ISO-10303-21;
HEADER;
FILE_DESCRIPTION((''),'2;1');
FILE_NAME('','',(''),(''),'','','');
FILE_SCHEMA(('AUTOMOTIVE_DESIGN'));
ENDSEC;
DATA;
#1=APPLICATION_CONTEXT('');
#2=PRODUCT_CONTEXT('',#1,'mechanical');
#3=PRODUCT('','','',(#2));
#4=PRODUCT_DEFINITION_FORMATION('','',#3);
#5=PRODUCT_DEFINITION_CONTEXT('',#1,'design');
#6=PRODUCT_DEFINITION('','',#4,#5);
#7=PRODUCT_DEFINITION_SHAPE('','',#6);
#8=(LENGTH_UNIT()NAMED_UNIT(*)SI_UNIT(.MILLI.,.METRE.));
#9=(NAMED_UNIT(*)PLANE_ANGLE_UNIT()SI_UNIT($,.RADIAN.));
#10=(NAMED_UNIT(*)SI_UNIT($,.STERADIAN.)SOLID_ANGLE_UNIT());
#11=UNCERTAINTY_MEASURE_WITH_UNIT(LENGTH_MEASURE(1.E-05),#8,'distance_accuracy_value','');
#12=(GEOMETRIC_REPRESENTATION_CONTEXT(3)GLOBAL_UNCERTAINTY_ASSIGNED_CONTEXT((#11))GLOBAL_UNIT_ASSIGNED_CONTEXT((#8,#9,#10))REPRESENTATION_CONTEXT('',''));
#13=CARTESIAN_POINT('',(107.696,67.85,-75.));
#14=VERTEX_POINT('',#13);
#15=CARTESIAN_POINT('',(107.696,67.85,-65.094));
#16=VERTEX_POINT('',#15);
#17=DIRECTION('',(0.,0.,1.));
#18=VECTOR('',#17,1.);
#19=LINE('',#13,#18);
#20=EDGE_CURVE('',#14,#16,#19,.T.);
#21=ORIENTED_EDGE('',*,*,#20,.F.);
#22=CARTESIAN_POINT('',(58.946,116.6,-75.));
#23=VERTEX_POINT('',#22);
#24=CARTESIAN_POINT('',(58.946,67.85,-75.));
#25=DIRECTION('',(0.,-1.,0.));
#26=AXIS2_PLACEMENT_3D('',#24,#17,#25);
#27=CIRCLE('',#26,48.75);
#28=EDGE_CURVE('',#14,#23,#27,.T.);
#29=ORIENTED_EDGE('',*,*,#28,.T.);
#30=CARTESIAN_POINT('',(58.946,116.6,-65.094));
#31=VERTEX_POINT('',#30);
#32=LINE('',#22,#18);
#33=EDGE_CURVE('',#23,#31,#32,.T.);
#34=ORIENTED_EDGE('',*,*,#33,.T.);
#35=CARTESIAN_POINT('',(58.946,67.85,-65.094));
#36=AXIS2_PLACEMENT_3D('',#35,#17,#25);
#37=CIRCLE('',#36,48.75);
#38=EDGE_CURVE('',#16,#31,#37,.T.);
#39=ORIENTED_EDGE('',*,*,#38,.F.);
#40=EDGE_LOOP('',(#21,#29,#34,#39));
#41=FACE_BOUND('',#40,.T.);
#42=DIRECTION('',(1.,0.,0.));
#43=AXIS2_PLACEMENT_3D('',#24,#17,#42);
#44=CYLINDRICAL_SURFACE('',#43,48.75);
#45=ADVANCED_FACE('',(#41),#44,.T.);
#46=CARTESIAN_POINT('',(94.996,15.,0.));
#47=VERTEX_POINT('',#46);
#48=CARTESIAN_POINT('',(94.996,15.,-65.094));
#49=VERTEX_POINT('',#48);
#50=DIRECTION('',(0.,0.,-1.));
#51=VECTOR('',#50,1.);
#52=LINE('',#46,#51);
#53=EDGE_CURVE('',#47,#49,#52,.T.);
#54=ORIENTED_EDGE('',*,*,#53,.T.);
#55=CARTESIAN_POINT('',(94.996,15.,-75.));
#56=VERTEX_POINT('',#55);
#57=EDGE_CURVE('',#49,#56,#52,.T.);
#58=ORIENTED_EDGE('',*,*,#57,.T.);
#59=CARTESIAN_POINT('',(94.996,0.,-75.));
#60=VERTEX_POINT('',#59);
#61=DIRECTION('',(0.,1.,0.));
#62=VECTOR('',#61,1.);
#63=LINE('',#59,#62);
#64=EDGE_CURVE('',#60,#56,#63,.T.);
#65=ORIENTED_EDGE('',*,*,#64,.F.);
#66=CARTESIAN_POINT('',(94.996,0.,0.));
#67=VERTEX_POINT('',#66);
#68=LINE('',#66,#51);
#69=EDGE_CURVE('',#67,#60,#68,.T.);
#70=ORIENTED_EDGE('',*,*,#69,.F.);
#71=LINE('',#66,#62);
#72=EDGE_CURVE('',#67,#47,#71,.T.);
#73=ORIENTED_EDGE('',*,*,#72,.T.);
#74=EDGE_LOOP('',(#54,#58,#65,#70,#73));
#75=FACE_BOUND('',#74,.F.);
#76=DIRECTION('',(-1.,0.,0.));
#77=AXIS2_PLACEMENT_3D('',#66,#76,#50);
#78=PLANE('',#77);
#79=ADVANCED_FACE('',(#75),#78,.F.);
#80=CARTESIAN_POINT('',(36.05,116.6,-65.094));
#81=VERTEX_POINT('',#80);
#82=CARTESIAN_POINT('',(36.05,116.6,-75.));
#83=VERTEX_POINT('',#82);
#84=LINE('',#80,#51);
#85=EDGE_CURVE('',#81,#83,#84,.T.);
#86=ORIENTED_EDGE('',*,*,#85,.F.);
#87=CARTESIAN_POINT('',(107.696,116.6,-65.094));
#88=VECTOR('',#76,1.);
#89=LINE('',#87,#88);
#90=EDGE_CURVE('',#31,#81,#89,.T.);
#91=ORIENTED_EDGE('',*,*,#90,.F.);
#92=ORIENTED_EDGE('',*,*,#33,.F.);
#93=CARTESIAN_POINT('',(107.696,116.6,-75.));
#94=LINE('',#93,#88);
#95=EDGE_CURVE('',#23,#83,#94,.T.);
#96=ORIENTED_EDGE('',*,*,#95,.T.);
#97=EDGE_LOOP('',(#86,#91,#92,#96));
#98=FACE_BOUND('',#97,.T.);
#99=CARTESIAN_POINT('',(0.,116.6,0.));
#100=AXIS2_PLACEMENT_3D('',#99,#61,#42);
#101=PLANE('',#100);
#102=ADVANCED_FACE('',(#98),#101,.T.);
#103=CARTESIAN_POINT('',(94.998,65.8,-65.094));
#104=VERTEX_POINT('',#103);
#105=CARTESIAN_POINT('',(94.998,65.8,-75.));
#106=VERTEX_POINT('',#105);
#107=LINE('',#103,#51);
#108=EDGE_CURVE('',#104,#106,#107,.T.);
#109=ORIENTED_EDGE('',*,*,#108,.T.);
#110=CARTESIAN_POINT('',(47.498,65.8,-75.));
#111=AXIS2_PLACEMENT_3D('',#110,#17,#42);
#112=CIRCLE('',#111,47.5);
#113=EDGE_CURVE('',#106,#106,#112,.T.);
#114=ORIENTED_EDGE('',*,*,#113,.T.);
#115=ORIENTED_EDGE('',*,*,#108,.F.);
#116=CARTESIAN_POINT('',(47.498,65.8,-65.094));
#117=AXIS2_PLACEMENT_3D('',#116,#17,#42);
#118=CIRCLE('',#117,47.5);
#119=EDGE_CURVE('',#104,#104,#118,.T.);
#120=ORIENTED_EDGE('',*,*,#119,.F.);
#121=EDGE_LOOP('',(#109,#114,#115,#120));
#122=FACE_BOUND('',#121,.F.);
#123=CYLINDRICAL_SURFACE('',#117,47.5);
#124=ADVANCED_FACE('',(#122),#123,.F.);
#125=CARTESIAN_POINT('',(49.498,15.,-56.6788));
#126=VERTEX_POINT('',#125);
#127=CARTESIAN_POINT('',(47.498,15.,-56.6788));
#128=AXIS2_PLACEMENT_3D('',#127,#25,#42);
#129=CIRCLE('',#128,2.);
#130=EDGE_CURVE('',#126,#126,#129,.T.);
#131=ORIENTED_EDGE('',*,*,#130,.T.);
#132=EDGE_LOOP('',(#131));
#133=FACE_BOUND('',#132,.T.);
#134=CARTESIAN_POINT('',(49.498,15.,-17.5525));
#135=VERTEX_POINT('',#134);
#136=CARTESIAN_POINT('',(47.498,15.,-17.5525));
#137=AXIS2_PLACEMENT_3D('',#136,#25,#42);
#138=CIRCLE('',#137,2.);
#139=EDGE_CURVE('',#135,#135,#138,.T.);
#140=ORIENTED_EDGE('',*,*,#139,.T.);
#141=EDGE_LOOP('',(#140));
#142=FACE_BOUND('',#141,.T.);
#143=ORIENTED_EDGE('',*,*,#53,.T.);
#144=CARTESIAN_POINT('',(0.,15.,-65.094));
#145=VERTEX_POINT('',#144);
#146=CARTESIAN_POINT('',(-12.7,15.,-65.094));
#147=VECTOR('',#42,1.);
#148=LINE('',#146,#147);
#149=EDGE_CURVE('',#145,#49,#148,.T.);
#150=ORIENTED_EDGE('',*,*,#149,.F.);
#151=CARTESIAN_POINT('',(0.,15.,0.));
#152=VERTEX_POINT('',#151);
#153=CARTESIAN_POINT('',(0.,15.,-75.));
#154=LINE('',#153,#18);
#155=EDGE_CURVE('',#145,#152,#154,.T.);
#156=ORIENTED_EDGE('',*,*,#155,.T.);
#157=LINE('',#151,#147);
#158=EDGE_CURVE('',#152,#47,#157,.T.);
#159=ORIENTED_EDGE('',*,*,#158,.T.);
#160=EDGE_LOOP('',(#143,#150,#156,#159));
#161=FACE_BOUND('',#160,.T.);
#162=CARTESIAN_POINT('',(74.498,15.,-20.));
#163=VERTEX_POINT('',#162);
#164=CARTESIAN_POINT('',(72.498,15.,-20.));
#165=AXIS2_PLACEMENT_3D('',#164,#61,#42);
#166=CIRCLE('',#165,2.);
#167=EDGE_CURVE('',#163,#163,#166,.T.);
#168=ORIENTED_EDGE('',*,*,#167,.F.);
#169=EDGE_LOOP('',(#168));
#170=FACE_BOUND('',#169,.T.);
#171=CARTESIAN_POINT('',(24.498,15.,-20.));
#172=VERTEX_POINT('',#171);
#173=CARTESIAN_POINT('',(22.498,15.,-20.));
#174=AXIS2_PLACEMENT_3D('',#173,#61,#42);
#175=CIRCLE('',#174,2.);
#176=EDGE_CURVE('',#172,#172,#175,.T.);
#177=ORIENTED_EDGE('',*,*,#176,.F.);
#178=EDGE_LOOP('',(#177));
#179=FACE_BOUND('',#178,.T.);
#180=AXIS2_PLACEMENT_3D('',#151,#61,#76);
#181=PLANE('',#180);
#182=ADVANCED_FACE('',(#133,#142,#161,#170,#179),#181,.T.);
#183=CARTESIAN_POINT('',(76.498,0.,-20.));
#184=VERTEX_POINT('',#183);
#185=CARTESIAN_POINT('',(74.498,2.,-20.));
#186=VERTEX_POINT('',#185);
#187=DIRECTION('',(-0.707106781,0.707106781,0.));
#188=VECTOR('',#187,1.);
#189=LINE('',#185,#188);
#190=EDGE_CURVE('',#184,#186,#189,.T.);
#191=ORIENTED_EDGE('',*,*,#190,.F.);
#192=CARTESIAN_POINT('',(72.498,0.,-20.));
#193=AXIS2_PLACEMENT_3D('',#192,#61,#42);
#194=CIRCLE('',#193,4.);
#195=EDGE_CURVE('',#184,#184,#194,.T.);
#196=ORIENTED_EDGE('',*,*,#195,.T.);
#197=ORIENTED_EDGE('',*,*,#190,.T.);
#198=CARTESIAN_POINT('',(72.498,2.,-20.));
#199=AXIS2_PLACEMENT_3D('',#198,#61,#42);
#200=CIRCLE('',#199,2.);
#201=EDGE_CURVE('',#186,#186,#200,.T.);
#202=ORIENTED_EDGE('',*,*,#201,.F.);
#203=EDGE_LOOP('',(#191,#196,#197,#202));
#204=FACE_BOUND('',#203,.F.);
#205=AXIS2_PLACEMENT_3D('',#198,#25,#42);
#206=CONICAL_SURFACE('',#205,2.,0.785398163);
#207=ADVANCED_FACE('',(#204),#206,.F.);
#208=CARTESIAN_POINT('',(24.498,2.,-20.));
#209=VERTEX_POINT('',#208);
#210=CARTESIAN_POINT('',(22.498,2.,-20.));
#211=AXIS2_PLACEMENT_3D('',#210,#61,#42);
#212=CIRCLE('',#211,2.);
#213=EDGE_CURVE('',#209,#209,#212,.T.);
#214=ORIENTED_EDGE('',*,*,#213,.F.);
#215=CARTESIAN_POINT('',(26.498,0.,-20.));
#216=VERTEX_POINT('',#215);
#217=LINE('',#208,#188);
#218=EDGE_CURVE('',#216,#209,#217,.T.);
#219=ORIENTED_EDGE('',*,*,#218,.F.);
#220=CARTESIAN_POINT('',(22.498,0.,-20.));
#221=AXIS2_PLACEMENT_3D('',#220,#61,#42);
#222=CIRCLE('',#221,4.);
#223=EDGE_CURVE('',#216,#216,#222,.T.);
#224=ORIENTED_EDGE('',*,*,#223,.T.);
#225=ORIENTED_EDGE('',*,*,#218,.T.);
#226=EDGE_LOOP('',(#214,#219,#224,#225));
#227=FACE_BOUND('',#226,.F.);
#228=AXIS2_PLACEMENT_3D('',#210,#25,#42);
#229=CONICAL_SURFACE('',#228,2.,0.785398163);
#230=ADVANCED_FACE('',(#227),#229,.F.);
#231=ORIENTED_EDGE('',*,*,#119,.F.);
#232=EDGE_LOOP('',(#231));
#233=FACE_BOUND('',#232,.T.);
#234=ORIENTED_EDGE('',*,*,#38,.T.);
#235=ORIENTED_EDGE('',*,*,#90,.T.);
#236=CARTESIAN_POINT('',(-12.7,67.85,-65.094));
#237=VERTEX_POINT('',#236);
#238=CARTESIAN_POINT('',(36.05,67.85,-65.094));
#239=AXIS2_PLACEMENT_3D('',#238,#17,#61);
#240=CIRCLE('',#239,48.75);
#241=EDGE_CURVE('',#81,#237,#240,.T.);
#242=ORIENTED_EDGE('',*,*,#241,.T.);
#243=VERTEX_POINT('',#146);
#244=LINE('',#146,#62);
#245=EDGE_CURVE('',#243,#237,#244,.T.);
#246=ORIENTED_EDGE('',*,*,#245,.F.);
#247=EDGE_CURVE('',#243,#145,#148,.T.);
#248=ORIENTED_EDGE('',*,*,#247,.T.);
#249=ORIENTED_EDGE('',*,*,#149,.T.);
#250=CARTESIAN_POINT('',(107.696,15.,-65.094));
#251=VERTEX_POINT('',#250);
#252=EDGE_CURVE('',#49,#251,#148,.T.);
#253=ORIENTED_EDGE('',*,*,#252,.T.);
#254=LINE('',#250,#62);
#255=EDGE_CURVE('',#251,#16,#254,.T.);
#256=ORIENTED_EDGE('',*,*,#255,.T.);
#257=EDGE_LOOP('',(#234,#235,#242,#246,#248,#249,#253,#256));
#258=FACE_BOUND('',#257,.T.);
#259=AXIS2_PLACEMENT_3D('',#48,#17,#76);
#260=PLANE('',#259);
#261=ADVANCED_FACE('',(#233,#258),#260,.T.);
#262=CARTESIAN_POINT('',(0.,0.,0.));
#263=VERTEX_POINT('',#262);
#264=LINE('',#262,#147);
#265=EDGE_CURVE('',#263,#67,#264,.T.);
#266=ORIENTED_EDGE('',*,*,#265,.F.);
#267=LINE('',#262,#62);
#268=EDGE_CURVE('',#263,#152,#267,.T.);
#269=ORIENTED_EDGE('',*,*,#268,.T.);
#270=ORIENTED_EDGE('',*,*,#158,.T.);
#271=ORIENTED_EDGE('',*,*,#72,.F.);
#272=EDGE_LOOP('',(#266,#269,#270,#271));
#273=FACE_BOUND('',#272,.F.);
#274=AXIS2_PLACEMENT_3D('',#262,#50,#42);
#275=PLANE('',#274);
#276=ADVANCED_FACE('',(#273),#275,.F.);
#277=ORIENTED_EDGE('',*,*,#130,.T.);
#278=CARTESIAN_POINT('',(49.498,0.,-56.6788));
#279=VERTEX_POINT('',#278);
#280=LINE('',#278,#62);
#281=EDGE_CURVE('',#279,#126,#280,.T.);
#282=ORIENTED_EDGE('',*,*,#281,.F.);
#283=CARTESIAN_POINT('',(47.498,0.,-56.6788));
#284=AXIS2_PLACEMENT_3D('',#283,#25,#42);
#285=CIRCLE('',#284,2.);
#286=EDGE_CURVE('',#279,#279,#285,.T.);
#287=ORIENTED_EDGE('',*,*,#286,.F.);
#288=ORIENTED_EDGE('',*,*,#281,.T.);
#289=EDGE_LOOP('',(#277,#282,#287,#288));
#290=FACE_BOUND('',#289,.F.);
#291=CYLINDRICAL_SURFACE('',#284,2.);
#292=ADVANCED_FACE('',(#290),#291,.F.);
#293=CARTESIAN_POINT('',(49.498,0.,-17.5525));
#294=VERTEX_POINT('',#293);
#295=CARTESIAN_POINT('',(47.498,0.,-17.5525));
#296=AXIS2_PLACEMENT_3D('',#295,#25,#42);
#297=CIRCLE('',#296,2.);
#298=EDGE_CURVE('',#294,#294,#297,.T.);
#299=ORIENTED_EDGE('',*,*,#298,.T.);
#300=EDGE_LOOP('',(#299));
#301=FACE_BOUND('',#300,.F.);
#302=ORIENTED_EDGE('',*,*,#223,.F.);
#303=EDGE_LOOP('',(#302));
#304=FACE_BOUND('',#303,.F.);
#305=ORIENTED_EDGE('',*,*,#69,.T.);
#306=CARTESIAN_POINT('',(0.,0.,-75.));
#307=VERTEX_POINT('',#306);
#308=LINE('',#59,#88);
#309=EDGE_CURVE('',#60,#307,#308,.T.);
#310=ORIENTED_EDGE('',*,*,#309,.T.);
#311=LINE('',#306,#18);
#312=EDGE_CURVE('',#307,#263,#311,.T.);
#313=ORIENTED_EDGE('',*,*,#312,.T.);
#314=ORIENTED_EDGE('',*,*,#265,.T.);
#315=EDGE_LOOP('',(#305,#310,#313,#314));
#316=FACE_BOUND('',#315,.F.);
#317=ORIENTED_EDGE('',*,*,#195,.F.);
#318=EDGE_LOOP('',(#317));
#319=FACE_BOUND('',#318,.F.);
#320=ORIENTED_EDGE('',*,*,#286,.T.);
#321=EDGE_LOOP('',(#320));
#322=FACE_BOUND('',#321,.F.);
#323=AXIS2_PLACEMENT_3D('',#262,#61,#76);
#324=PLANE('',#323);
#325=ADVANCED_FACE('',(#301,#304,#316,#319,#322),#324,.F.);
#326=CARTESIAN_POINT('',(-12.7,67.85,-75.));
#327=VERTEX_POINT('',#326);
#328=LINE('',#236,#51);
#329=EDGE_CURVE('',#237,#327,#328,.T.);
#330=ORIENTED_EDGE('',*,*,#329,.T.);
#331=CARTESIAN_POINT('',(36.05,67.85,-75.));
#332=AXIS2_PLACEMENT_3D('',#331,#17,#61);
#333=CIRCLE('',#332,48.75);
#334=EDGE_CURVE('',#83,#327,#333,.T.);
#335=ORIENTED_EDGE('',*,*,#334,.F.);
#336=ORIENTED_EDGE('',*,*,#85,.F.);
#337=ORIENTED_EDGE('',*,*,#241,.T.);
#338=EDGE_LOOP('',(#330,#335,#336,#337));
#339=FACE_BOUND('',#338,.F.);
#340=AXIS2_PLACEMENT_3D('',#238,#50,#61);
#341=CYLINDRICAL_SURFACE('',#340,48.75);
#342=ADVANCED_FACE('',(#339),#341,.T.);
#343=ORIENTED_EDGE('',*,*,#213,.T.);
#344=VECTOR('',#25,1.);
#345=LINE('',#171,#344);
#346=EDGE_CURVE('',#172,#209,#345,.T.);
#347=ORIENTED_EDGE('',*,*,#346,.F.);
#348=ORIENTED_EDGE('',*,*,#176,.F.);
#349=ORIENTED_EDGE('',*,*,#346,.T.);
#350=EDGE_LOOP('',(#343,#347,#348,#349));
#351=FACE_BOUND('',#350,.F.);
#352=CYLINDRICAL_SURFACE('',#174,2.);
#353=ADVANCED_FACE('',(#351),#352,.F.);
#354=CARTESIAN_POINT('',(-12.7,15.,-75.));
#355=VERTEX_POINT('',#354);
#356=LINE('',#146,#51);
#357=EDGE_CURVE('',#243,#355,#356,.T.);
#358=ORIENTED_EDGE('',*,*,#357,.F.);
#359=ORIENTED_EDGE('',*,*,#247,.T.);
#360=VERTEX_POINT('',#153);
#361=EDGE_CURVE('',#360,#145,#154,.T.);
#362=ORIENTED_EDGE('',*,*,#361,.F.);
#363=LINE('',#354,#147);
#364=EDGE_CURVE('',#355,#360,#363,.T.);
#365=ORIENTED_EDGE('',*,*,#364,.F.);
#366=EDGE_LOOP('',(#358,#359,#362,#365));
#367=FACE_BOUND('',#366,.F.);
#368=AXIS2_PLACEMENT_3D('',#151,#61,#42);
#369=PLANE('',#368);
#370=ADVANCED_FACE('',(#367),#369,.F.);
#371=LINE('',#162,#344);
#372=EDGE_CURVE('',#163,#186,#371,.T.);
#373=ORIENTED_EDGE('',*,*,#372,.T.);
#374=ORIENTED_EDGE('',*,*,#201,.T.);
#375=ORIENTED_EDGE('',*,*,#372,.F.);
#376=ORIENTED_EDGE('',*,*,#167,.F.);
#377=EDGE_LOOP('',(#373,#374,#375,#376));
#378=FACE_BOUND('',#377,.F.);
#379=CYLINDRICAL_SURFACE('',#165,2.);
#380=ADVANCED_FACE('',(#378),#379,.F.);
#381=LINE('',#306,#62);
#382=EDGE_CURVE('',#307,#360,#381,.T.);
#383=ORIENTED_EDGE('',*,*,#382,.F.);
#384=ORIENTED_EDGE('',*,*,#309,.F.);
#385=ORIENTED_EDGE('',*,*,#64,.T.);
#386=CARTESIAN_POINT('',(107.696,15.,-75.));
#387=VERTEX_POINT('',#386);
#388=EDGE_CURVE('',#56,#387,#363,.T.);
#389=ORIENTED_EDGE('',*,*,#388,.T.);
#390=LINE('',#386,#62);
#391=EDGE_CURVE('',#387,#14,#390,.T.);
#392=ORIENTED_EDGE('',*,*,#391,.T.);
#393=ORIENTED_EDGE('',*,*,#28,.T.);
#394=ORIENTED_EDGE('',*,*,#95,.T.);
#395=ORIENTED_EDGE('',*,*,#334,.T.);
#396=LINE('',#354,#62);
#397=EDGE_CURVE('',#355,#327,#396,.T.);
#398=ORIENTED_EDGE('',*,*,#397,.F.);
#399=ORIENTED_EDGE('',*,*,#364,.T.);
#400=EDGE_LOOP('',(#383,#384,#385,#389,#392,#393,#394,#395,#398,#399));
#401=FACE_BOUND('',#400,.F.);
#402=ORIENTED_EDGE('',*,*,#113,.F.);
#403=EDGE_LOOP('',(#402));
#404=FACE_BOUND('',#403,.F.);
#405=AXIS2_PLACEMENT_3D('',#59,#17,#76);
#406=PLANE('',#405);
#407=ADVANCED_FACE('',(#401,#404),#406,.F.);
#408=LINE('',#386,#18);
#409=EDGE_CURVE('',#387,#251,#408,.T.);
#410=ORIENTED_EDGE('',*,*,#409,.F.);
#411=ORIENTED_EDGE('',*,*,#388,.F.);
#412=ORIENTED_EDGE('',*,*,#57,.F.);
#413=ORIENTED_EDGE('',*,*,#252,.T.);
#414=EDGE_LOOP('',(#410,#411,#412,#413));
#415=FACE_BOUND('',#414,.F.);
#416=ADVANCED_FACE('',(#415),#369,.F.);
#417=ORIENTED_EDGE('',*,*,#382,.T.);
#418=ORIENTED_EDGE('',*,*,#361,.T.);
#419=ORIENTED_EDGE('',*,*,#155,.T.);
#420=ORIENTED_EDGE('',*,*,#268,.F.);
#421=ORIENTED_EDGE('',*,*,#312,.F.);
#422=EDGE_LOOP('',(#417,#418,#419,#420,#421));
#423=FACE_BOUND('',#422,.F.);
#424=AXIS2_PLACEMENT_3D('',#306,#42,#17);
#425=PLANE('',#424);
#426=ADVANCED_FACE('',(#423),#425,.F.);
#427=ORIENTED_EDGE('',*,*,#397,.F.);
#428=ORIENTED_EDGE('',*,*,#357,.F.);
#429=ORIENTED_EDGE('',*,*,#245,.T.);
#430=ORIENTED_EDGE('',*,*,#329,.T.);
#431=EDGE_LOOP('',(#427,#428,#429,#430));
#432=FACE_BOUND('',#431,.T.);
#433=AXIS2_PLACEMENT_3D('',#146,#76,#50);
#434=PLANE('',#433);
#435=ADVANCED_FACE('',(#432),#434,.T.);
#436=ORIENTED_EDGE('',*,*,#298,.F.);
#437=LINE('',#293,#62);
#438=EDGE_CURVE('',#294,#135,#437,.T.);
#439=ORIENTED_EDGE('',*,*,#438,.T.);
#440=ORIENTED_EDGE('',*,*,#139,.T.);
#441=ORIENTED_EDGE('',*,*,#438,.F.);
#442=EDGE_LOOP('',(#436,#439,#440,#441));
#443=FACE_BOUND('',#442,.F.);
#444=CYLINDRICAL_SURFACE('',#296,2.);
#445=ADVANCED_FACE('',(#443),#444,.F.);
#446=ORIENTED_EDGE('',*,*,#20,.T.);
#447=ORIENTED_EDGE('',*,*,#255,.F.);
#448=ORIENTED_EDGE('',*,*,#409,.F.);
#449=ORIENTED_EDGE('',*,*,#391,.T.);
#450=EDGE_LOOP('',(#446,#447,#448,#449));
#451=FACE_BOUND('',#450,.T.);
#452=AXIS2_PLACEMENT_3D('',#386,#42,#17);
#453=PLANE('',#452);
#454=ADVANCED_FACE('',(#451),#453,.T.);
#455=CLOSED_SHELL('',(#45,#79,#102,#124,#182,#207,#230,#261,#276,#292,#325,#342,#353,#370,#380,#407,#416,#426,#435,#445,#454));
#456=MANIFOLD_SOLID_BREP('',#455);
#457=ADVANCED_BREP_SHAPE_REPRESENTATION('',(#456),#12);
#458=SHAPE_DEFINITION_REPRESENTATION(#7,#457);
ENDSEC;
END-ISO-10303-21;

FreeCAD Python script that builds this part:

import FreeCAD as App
import Part
import Sketcher

V = App.Vector


def edges_at(feature, points):
    """Names of the edges that pass closest to the given points."""
    edges = feature.Shape.Edges
    near = lambda p: min(range(len(edges)), key=lambda i: edges[i].distToShape(Part.Vertex(*p))[0])
    return sorted({f"Edge{near(p) + 1}" for p in points})


def add_polygon(sketch, points):
    """Adds a closed chain of lines whose ends are joined by coincident constraints."""
    first, n = sketch.GeometryCount, len(points)
    for a, b in zip(points, points[1:] + points[:1]):
        sketch.addGeometry(Part.LineSegment(App.Vector(*a, 0), App.Vector(*b, 0)), False)
    for i in range(n):
        sketch.addConstraint(Sketcher.Constraint("Coincident", first + i, 2, first + (i + 1) % n, 1))

doc = App.newDocument("Part")
body = doc.addObject("PartDesign::Body", "Body")

# Sketch on XZ plane
sketch1 = body.newObject("Sketcher::SketchObject", "Sketch")
sketch1.AttachmentSupport = (doc.getObject("XZ_Plane"), [""])
sketch1.MapMode = "FlatFace"
add_polygon(sketch1, [(0, -75), (0, 0), (94.996, 0), (94.996, -75)])  # lines 0-3
sketch1.addConstraint([
    Sketcher.Constraint("Vertical", 0),
    Sketcher.Constraint("Horizontal", 1),
    Sketcher.Constraint("Vertical", 2),
    Sketcher.Constraint("Horizontal", 3),
    Sketcher.Constraint("Coincident", 0, 2, -1, 1),
    Sketcher.Constraint("DistanceY", 0, 1, 0, 2, 75.0),
    Sketcher.Constraint("DistanceX", 1, 1, 1, 2, 94.996),
])
pad1 = body.newObject("PartDesign::Pad", "Pad")
pad1.Profile = sketch1
pad1.Length = 15
pad1.Reversed = True

# Sketch on XZ plane
sketch2 = body.newObject("Sketcher::SketchObject", "Sketch001")
sketch2.AttachmentSupport = (doc.getObject("XZ_Plane"), [""])
sketch2.MapMode = "FlatFace"
sketch2.AttachmentOffset = App.Placement(V(0, 0, -15), App.Rotation())
add_polygon(sketch2, [(-12.7, -65.094), (107.696, -65.094), (107.696, -75), (-12.7, -75)])  # lines 0-3
sketch2.addConstraint([
    Sketcher.Constraint("Horizontal", 0),
    Sketcher.Constraint("Vertical", 1),
    Sketcher.Constraint("Horizontal", 2),
    Sketcher.Constraint("Vertical", 3),
    Sketcher.Constraint("DistanceX", 2, 2, -1, 1, 12.7),
    Sketcher.Constraint("DistanceY", 1, 2, 1, 1, 9.906),
    Sketcher.Constraint("DistanceY", 1, 2, -1, 1, 75.0),
    Sketcher.Constraint("DistanceX", 0, 1, 0, 2, 120.396),
])
pad2 = body.newObject("PartDesign::Pad", "Pad001")
pad2.Profile = sketch2
pad2.Length = 101.6
pad2.Reversed = True

# Sketch on XZ plane
sketch3 = body.newObject("Sketcher::SketchObject", "Sketch002")
sketch3.AttachmentSupport = (doc.getObject("XZ_Plane"), [""])
sketch3.MapMode = "FlatFace"
sketch3.addGeometry([
    Part.Circle(V(47.498, -17.5525, 0), V(0, 0, 1), 2),
    Part.Circle(V(47.498, -56.6788, 0), V(0, 0, 1), 2),
], False)
sketch3.addConstraint([
    Sketcher.Constraint("Equal", 0, 1),
    Sketcher.Constraint("Vertical", 0, 3, 1, 3),
    Sketcher.Constraint("Diameter", 0, 4.0),
    Sketcher.Constraint("DistanceX", -1, 1, 0, 3, 47.498),
    Sketcher.Constraint("DistanceY", 0, 3, -1, 1, 17.5525),
    Sketcher.Constraint("DistanceY", 1, 3, -1, 1, 56.6788),
])
pocket1 = body.newObject("PartDesign::Pocket", "Pocket")
pocket1.Profile = sketch3
pocket1.Type = "ThroughAll"

# Sketch on XY plane
sketch4 = body.newObject("Sketcher::SketchObject", "Sketch003")
sketch4.AttachmentSupport = (doc.getObject("XY_Plane"), [""])
sketch4.MapMode = "FlatFace"
sketch4.AttachmentOffset = App.Placement(V(0, 0, -65.094), App.Rotation())
sketch4.addGeometry(Part.Circle(V(47.498, 65.8, 0), V(0, 0, 1), 47.5), False)
sketch4.addConstraint([
    Sketcher.Constraint("Diameter", 0, 95.0),
    Sketcher.Constraint("DistanceY", -1, 1, 0, 3, 65.8),
    Sketcher.Constraint("DistanceX", -1, 1, 0, 3, 47.498),
])
pocket2 = body.newObject("PartDesign::Pocket", "Pocket001")
pocket2.Profile = sketch4
pocket2.Type = "ThroughAll"

# Sketch on XZ plane
sketch5 = body.newObject("Sketcher::SketchObject", "Sketch004")
sketch5.AttachmentSupport = (doc.getObject("XZ_Plane"), [""])
sketch5.MapMode = "FlatFace"
sketch5.AttachmentOffset = App.Placement(V(0, 0, -15), App.Rotation())
sketch5.addGeometry([
    Part.Circle(V(72.498, -20, 0), V(0, 0, 1), 2),
    Part.Circle(V(22.498, -20, 0), V(0, 0, 1), 2),
], False)
sketch5.addConstraint([
    Sketcher.Constraint("Equal", 0, 1),
    Sketcher.Constraint("Horizontal", 0, 3, 1, 3),
    Sketcher.Constraint("Diameter", 0, 4.0),
    Sketcher.Constraint("DistanceY", 0, 3, -1, 1, 20.0),
    Sketcher.Constraint("DistanceX", 1, 3, 0, 3, 50.0),
    Sketcher.Constraint("DistanceX", -1, 1, 0, 3, 72.498),
])
pocket3 = body.newObject("PartDesign::Pocket", "Pocket002")
pocket3.Profile = sketch5
pocket3.Type = "ThroughAll"
pocket3.Reversed = True
doc.recompute()

chamfer = body.newObject("PartDesign::Chamfer", "Chamfer")
chamfer.Base = (pocket3, edges_at(pocket3, [(70.498, 0, -20), (20.498, 0, -20)]))
chamfer.Size = 2
doc.recompute()

fillet = body.newObject("PartDesign::Fillet", "Fillet")
fillet.Base = (chamfer, edges_at(chamfer, [(-12.7, 116.6, -70.047), (107.696, 116.6, -70.047)]))
fillet.Radius = 48.75

doc.recompute()
